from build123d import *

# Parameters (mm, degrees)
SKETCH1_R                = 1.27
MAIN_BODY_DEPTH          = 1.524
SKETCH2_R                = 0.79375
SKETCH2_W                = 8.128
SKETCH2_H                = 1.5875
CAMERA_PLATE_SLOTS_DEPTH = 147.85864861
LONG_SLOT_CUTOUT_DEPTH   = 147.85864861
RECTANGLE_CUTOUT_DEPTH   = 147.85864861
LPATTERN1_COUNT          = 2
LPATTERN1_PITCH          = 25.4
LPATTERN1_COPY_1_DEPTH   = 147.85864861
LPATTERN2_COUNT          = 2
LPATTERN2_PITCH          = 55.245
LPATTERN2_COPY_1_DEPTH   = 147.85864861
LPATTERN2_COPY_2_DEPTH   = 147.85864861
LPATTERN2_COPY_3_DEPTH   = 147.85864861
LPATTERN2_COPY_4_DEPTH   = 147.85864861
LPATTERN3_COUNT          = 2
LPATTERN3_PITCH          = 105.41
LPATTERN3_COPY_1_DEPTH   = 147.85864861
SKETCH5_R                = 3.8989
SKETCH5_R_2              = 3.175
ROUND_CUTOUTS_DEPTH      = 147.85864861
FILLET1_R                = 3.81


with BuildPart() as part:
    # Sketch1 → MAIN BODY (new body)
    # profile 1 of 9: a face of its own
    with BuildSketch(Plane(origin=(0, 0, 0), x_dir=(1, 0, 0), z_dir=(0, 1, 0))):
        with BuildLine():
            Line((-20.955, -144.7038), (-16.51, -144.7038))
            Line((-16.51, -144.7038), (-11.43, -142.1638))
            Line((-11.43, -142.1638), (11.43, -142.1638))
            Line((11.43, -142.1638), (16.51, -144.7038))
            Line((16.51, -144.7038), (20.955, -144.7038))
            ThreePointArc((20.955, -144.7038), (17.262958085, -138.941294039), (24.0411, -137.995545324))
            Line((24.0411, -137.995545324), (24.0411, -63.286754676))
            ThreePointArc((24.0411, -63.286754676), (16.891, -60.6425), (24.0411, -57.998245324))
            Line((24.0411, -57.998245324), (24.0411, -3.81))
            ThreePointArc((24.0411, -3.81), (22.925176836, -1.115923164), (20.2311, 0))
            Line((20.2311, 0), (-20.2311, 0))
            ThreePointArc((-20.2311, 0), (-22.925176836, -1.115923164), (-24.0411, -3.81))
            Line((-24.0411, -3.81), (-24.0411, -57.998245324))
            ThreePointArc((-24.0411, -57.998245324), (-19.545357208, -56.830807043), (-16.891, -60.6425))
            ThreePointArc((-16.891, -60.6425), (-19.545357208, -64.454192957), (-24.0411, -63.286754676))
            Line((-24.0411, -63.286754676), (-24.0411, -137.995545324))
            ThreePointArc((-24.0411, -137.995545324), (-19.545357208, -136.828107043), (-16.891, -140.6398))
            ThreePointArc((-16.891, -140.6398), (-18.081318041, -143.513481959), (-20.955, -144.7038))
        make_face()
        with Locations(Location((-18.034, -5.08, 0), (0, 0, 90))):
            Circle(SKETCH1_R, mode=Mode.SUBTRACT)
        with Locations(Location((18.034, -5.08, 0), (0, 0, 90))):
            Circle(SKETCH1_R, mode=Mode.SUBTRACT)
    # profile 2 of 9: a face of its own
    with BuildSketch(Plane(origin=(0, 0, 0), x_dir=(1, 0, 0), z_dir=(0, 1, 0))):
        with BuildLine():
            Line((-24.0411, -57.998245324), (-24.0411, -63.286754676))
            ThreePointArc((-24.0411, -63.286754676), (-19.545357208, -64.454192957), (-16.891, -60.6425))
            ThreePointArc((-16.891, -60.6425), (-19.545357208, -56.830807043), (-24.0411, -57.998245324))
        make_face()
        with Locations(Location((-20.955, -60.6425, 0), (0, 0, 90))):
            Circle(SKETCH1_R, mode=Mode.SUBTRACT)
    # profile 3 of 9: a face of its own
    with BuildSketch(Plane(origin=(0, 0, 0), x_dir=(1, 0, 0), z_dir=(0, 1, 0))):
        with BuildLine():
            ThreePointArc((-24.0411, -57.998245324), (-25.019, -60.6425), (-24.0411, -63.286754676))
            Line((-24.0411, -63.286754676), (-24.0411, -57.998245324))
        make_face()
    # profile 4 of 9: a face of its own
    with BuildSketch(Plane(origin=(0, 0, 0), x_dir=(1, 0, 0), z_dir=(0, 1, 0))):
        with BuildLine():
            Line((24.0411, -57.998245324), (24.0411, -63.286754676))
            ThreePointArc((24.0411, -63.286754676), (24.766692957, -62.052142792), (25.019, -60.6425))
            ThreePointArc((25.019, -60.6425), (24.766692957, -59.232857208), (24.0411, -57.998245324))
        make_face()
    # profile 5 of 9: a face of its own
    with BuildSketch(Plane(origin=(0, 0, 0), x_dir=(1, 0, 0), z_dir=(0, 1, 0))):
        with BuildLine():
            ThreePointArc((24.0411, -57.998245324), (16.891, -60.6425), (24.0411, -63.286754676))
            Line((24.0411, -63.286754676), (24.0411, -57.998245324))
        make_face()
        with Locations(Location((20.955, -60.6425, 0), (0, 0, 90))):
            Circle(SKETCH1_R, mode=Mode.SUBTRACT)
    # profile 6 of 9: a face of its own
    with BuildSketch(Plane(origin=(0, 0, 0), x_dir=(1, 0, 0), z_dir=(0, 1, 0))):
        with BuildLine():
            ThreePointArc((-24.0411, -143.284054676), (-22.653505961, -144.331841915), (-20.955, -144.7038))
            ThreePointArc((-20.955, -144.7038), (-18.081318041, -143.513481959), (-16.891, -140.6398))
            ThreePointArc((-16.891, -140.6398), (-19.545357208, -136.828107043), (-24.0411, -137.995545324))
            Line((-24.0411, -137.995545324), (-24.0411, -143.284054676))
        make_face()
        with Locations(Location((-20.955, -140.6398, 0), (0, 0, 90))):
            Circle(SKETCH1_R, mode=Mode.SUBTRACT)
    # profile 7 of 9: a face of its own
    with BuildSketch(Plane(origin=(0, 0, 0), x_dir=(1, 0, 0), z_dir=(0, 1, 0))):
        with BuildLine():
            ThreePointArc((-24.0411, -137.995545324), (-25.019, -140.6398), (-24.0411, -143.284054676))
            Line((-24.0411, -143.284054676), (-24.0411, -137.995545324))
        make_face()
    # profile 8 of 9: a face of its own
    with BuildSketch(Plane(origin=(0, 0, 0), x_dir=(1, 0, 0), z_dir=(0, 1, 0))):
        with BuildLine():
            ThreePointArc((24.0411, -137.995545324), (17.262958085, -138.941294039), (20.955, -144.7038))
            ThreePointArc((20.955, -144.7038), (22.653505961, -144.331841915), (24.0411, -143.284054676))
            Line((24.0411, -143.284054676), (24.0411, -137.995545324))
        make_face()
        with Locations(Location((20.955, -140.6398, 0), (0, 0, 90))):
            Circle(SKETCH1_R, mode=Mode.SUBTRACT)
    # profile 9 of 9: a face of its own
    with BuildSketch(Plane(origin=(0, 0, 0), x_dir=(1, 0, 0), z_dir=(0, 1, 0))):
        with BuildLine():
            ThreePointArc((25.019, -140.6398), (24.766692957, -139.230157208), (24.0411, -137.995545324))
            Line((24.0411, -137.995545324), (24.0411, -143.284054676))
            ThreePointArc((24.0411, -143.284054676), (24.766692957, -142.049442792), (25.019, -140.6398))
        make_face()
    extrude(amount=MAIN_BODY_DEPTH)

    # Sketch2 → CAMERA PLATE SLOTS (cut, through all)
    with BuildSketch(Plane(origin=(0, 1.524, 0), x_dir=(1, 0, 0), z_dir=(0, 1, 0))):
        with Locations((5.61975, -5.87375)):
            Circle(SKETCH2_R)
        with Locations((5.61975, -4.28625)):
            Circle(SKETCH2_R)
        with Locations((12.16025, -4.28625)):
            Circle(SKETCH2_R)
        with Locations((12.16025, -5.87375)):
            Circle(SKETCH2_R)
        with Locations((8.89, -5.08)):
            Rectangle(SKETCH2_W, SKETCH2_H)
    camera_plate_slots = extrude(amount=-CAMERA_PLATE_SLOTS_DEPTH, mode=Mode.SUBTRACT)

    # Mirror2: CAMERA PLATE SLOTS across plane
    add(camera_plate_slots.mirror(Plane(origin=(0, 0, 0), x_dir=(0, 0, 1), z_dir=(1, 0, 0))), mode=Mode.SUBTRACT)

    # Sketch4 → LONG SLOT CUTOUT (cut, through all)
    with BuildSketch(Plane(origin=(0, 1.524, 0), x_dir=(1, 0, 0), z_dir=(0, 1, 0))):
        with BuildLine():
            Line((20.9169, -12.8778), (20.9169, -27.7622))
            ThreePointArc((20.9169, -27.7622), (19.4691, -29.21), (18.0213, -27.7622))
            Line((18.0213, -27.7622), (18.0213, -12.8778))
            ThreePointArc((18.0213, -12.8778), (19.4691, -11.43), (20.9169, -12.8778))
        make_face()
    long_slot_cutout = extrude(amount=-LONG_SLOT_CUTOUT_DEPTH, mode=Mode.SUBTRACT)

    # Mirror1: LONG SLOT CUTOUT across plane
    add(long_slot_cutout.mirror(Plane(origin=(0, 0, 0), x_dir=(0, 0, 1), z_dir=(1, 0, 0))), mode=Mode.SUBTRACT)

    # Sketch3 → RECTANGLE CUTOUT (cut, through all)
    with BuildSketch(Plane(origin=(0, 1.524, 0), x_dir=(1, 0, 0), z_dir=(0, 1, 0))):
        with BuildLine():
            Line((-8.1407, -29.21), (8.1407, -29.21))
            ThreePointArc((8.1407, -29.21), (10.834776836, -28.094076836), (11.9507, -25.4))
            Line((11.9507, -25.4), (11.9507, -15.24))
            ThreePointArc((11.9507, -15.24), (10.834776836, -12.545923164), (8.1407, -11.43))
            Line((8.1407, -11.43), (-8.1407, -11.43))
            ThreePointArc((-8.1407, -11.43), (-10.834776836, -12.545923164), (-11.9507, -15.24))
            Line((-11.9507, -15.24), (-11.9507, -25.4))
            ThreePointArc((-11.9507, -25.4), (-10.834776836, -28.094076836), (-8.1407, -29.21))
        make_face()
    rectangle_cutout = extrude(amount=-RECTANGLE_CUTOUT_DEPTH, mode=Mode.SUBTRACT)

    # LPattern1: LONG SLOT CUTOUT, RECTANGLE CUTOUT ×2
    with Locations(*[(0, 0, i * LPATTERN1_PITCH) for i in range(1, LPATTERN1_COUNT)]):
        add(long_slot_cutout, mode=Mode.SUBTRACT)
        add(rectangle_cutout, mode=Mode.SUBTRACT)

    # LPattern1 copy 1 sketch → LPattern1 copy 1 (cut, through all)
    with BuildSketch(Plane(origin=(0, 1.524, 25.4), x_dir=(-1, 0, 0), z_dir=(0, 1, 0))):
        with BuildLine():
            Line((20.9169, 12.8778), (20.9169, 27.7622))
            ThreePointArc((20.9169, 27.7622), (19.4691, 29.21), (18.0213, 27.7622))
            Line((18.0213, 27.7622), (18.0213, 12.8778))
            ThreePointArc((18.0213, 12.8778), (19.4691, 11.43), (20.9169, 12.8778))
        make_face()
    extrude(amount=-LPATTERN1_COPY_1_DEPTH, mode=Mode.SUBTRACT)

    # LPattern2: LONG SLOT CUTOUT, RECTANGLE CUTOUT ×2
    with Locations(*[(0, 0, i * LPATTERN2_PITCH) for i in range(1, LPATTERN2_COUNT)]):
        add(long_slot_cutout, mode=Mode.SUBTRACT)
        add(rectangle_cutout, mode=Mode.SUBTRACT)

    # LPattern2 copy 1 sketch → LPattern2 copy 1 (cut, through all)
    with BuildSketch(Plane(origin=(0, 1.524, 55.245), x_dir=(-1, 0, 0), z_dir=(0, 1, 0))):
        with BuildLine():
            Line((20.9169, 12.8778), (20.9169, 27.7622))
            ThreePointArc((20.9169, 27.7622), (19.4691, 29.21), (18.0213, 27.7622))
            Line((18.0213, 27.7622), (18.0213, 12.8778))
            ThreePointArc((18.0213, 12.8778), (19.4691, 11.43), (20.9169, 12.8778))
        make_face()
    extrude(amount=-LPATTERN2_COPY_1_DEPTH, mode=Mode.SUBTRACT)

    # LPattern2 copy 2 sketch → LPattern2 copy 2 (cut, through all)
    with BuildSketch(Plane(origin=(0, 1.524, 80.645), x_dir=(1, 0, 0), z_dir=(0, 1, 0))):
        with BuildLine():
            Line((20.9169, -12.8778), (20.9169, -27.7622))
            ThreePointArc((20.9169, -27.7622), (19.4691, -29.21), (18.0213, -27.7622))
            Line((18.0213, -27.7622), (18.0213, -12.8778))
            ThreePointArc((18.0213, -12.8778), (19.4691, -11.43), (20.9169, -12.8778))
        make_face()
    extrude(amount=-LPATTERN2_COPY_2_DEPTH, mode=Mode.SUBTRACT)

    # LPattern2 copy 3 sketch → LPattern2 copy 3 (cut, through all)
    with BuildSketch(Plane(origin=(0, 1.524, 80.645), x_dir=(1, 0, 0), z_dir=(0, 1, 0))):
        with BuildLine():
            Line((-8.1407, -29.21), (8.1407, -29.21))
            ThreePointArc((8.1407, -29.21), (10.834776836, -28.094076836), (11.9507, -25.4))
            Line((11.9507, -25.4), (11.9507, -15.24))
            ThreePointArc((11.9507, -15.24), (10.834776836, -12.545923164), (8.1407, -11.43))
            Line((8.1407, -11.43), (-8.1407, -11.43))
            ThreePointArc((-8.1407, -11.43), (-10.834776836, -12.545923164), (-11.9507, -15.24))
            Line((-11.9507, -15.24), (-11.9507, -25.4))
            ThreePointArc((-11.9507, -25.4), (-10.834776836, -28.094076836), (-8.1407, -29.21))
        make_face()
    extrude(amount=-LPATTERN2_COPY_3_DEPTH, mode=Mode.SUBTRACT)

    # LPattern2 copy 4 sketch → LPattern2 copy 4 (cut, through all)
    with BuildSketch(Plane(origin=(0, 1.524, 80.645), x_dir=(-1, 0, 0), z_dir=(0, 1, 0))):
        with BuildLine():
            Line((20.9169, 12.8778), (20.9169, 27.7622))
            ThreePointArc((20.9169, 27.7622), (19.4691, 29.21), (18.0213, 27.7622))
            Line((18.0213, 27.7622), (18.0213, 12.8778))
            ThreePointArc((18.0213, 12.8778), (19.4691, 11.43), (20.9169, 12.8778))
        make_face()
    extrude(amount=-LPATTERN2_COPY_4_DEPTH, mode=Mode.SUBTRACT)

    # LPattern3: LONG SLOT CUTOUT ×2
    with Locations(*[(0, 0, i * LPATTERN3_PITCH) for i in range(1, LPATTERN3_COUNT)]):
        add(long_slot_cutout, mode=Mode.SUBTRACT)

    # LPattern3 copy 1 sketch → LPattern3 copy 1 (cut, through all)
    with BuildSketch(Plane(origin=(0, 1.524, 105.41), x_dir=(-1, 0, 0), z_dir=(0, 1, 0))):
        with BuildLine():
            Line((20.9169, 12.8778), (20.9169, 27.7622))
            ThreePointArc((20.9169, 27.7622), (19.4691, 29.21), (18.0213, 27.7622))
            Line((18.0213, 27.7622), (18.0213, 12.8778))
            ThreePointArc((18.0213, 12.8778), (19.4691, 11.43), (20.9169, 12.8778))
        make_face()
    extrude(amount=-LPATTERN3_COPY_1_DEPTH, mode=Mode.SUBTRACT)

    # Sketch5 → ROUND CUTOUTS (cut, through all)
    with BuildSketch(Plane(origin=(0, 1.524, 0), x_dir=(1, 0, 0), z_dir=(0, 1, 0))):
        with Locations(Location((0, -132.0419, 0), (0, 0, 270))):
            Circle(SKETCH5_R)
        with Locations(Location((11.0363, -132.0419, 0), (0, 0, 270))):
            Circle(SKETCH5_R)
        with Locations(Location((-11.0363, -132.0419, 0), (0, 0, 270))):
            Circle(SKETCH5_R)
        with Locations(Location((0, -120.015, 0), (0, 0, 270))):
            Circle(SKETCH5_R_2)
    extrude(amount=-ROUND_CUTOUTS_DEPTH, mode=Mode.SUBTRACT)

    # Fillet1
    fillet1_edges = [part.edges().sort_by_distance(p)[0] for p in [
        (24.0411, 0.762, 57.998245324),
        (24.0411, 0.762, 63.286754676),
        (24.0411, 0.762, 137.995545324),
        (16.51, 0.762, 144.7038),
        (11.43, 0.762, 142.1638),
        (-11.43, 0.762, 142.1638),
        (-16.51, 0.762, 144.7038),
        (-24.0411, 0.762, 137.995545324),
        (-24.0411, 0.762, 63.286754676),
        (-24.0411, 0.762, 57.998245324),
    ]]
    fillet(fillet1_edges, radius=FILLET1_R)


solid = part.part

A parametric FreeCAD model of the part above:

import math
import FreeCAD as App
import Part
import Sketcher

V = App.Vector
Q = App.Units.Quantity


def edges_at(feature, points):
    """Names of the edges that pass closest to the given points."""
    edges = feature.Shape.Edges
    near = lambda p: min(range(len(edges)), key=lambda i: edges[i].distToShape(Part.Vertex(*p))[0])
    return sorted({f"Edge{near(p) + 1}" for p in points})

doc = App.newDocument("Part")
params = doc.addObject("Spreadsheet::Sheet", "Params")
for row, (alias, value) in enumerate([
    ("sketch1_diameter", "0.1 in"),
    ("sketch1_radius", "0.16 in"),
    ("sketch1_radius2", "0.15 in"),
    ("sketch1_width", "0.9 in"),
    ("sketch1_width2", "0.175 in"),
    ("pad1_length", "0.06 in"),
    ("sketch2_radius", "0.03125 in"),
    ("sketch2_width", "0.195 in"),
    ("sketch2_height", "0.0625 in"),
    ("sketch3_radius", "0.057 in"),
    ("sketch3_height", "0.586 in"),
    ("sketch4_radius", "0.15 in"),
    ("sketch4_height", "0.4 in"),
    ("sketch4_width", "0.641 in"),
    ("linearpattern_pitch", "1 in"),
    ("sketch5_radius", "0.057 in"),
    ("sketch5_height", "0.586 in"),
    ("linearpattern2_pitch", "2.175 in"),
    ("sketch6_radius", "0.057 in"),
    ("sketch6_height", "0.586 in"),
    ("sketch7_radius", "0.057 in"),
    ("sketch7_height", "0.586 in"),
    ("sketch8_radius", "0.15 in"),
    ("sketch8_height", "0.4 in"),
    ("sketch8_width", "0.641 in"),
    ("sketch9_radius", "0.057 in"),
    ("sketch9_height", "0.586 in"),
    ("linearpattern3_pitch", "4.15 in"),
    ("sketch10_radius", "0.057 in"),
    ("sketch10_height", "0.586 in"),
    ("sketch11_diameter", "0.25 in"),
    ("sketch11_diameter2", "0.307 in"),
    ("fillet_radius", "0.15 in"),
], start=1):
    params.set(f"A{row}", alias)
    params.set(f"B{row}", "=" + value)
    params.setAlias(f"B{row}", alias)

body = doc.addObject("PartDesign::Body", "Body")

sketch1 = body.newObject("Sketcher::SketchObject", "Sketch")
sketch1.AttachmentSupport = (doc.getObject("XZ_Plane"), [""])
sketch1.MapMode = "FlatFace"
sketch1.addGeometry(Part.LineSegment(V(-21, 144.7, 0), V(-16.5, 144.7, 0)), False)
sketch1.addGeometry(Part.LineSegment(V(-16.5, 144.7, 0), V(-11.4, 142.2, 0)), False)
sketch1.addGeometry(Part.LineSegment(V(-11.4, 142.2, 0), V(11.4, 142.2, 0)), False)
sketch1.addGeometry(Part.LineSegment(V(11.4, 142.2, 0), V(16.5, 144.7, 0)), False)
sketch1.addGeometry(Part.LineSegment(V(16.5, 144.7, 0), V(21, 144.7, 0)), False)
sketch1.addGeometry(Part.ArcOfCircle(Part.Circle(V(21, 140.6, 0), V(0, 0, 1), 4.1), math.radians(41), math.radians(90)), False)
sketch1.addGeometry(Part.ArcOfCircle(Part.Circle(V(21, 140.6, 0), V(0, 0, 1), 4.1), math.radians(0), math.radians(41)), False)
sketch1.addGeometry(Part.ArcOfCircle(Part.Circle(V(21, 140.6, 0), V(0, 0, 1), 4.1), math.radians(-41), math.radians(0)), False)
sketch1.addGeometry(Part.LineSegment(V(24, 138, 0), V(24, 63.3, 0)), False)
sketch1.addGeometry(Part.ArcOfCircle(Part.Circle(V(21, 60.6, 0), V(0, 0, 1), 4.1), math.radians(0), math.radians(41)), False)
sketch1.addGeometry(Part.ArcOfCircle(Part.Circle(V(21, 60.6, 0), V(0, 0, 1), 4.1), math.radians(-41), math.radians(0)), False)
sketch1.addGeometry(Part.LineSegment(V(24, 58, 0), V(24, 3.8, 0)), False)
sketch1.addGeometry(Part.ArcOfCircle(Part.Circle(V(20.2, 3.8, 0), V(0, 0, 1), 3.8), math.radians(-90), math.radians(0)), False)
sketch1.addGeometry(Part.LineSegment(V(20.2, 0, 0), V(-20.2, 0, 0)), False)
sketch1.addGeometry(Part.ArcOfCircle(Part.Circle(V(-20.2, 3.8, 0), V(0, 0, 1), 3.8), math.radians(-180), math.radians(-90)), False)
sketch1.addGeometry(Part.LineSegment(V(-24, 3.8, 0), V(-24, 58, 0)), False)
sketch1.addGeometry(Part.ArcOfCircle(Part.Circle(V(-21, 60.6, 0), V(0, 0, 1), 4.1), math.radians(139), math.radians(221)), False)
sketch1.addGeometry(Part.LineSegment(V(-24, 63.3, 0), V(-24, 138, 0)), False)
sketch1.addGeometry(Part.ArcOfCircle(Part.Circle(V(-21, 140.6, 0), V(0, 0, 1), 4.1), math.radians(139), math.radians(221)), False)
sketch1.addGeometry(Part.ArcOfCircle(Part.Circle(V(-21, 140.6, 0), V(0, 0, 1), 4.1), math.radians(90), math.radians(139)), False)
sketch1.addGeometry(Part.Circle(V(-18, 5.1, 0), V(0, 0, 1), 1.3), False)
sketch1.addGeometry(Part.Circle(V(18, 5.1, 0), V(0, 0, 1), 1.3), False)
sketch1.addGeometry(Part.Circle(V(-21, 140.6, 0), V(0, 0, 1), 1.3), False)
sketch1.addGeometry(Part.Circle(V(-21, 60.6, 0), V(0, 0, 1), 1.3), False)
sketch1.addGeometry(Part.Circle(V(21, 140.6, 0), V(0, 0, 1), 1.3), False)
sketch1.addGeometry(Part.Circle(V(21, 60.6, 0), V(0, 0, 1), 1.3), False)
sketch1.addConstraint(Sketcher.Constraint("Coincident", 0, 2, 1, 1))
sketch1.addConstraint(Sketcher.Constraint("Coincident", 1, 2, 2, 1))
sketch1.addConstraint(Sketcher.Constraint("Coincident", 2, 2, 3, 1))
sketch1.addConstraint(Sketcher.Constraint("Coincident", 3, 2, 4, 1))
sketch1.addConstraint(Sketcher.Constraint("Tangent", 4, 2, 5, 2))
sketch1.addConstraint(Sketcher.Constraint("Tangent", 5, 1, 6, 2))
sketch1.addConstraint(Sketcher.Constraint("Tangent", 6, 1, 7, 2))
sketch1.addConstraint(Sketcher.Constraint("Coincident", 7, 1, 8, 1))
sketch1.addConstraint(Sketcher.Constraint("Coincident", 8, 2, 9, 2))
sketch1.addConstraint(Sketcher.Constraint("Tangent", 9, 1, 10, 2))
sketch1.addConstraint(Sketcher.Constraint("Coincident", 10, 1, 11, 1))
sketch1.addConstraint(Sketcher.Constraint("Tangent", 11, 2, 12, 2))
sketch1.addConstraint(Sketcher.Constraint("Tangent", 12, 1, 13, 1))
sketch1.addConstraint(Sketcher.Constraint("Tangent", 13, 2, 14, 2))
sketch1.addConstraint(Sketcher.Constraint("Tangent", 14, 1, 15, 1))
sketch1.addConstraint(Sketcher.Constraint("Coincident", 15, 2, 16, 2))
sketch1.addConstraint(Sketcher.Constraint("Coincident", 16, 1, 17, 1))
sketch1.addConstraint(Sketcher.Constraint("Coincident", 17, 2, 18, 2))
sketch1.addConstraint(Sketcher.Constraint("Tangent", 18, 1, 19, 2))
sketch1.addConstraint(Sketcher.Constraint("Tangent", 19, 1, 0, 1))
sketch1.addConstraint(Sketcher.Constraint("Horizontal", 0))
sketch1.addConstraint(Sketcher.Constraint("Horizontal", 2))
sketch1.addConstraint(Sketcher.Constraint("Horizontal", 4))
sketch1.addConstraint(Sketcher.Constraint("Vertical", 8))
sketch1.addConstraint(Sketcher.Constraint("Vertical", 11))
sketch1.addConstraint(Sketcher.Constraint("Horizontal", 13))
sketch1.addConstraint(Sketcher.Constraint("Vertical", 15))
sketch1.addConstraint(Sketcher.Constraint("Vertical", 17))
sketch1.addConstraint(Sketcher.Constraint("Coincident", 7, 3, 5, 3))
sketch1.addConstraint(Sketcher.Constraint("Coincident", 22, 3, 18, 3))
sketch1.addConstraint(Sketcher.Constraint("Coincident", 23, 3, 16, 3))
sketch1.addConstraint(Sketcher.Constraint("Coincident", 24, 3, 5, 3))
sketch1.addConstraint(Sketcher.Constraint("Coincident", 25, 3, 9, 3))
sketch1.addConstraint(Sketcher.Constraint("Equal", 7, 9))
sketch1.addConstraint(Sketcher.Constraint("Equal", 9, 10))
sketch1.addConstraint(Sketcher.Constraint("Equal", 12, 14))
sketch1.addConstraint(Sketcher.Constraint("Equal", 10, 16))
sketch1.addConstraint(Sketcher.Constraint("Equal", 16, 18))
sketch1.addConstraint(Sketcher.Constraint("Equal", 18, 19))
sketch1.addConstraint(Sketcher.Constraint("Equal", 20, 21))
sketch1.addConstraint(Sketcher.Constraint("Equal", 21, 22))
sketch1.addConstraint(Sketcher.Constraint("Equal", 22, 23))
sketch1.addConstraint(Sketcher.Constraint("Equal", 23, 24))
sketch1.addConstraint(Sketcher.Constraint("Equal", 24, 25))
sketch1.addConstraint(Sketcher.Constraint("Symmetric", 12, 1, 13, 2, -1, 1))
sketch1.addConstraint(Sketcher.Constraint("Symmetric", 9, 3, 16, 3, -2))
sketch1.addConstraint(Sketcher.Constraint("Symmetric", 5, 3, 18, 3, -2))
sketch1.addConstraint(Sketcher.Constraint("Symmetric", 20, 3, 21, 3, -2))
sketch1.addConstraint(Sketcher.Constraint("Horizontal", 24, 3, 6, 1))
sketch1.addConstraint(Sketcher.Constraint("Horizontal", 25, 3, 9, 1))
sketch1.addConstraint(Sketcher.Constraint("Horizontal", 8, 2, 16, 1))
sketch1.addConstraint(Sketcher.Constraint("Horizontal", 5, 1, 18, 1))
sketch1.addConstraint(Sketcher.Constraint("Vertical", 7, 3, 9, 3))
sketch1.addConstraint(Sketcher.Constraint("Vertical", 5, 1, 7, 1))
sketch1.addConstraint(Sketcher.Constraint("Vertical", 8, 2, 10, 1))
sketch1.addConstraint(Sketcher.Constraint("Equal", 0, 4))
sketch1.addConstraint(Sketcher.Constraint("Equal", 1, 3))
sketch1.addConstraint(Sketcher.Constraint("Diameter", 20, Q("0.1 in")))
sketch1.addConstraint(Sketcher.Constraint("Radius", 5, Q("0.16 in")))
sketch1.addConstraint(Sketcher.Constraint("Radius", 12, Q("0.15 in")))
sketch1.addConstraint(Sketcher.Constraint("DistanceX", 2, 1, 2, 2, Q("0.9 in")))
sketch1.addConstraint(Sketcher.Constraint("DistanceY", -1, 1, 20, 3, Q("0.2 in")))
sketch1.addConstraint(Sketcher.Constraint("DistanceX", 0, 2, 1, 2, Q("0.2 in")))
sketch1.addConstraint(Sketcher.Constraint("DistanceY", 1, 2, 0, 2, Q("0.1 in")))
sketch1.addConstraint(Sketcher.Constraint("DistanceX", 0, 1, 0, 2, Q("0.175 in")))
sketch1.addConstraint(Sketcher.Constraint("DistanceX", 13, 2, 13, 1, Q("1.593 in")))
sketch1.addConstraint(Sketcher.Constraint("DistanceX", 20, 3, -1, 1, Q("0.71 in")))
sketch1.addConstraint(Sketcher.Constraint("DistanceY", -1, 1, 5, 3, Q("5.537 in")))
sketch1.addConstraint(Sketcher.Constraint("DistanceY", 20, 3, 16, 3, Q("2.1875 in")))
sketch1.setExpression("Constraints[57]", "Params.sketch1_diameter")
sketch1.setExpression("Constraints[58]", "Params.sketch1_radius")
sketch1.setExpression("Constraints[59]", "Params.sketch1_radius2")
sketch1.setExpression("Constraints[60]", "Params.sketch1_width")
sketch1.setExpression("Constraints[64]", "Params.sketch1_width2")
pad1 = body.newObject("PartDesign::Pad", "Pad")
pad1.Profile = sketch1
pad1.setExpression("Length", "Params.pad1_length")
pad1.Reversed = True

sketch2 = body.newObject("Sketcher::SketchObject", "Sketch001")
sketch2.AttachmentSupport = (doc.getObject("XZ_Plane"), [""])
sketch2.MapMode = "FlatFace"
sketch2.AttachmentOffset = App.Placement(V(0, 0, -0.06 * 25.4), App.Rotation())
sketch2.addGeometry(Part.LineSegment(V(6.4, 5.9, 0), V(11.4, 5.9, 0)), False)
sketch2.addGeometry(Part.ArcOfCircle(Part.Circle(V(12.2, 5.9, 0), V(0, 0, 1), 0.8), math.radians(0), math.radians(180)), False)
sketch2.addGeometry(Part.LineSegment(V(13, 5.9, 0), V(13, 4.3, 0)), False)
sketch2.addGeometry(Part.ArcOfCircle(Part.Circle(V(12.2, 4.3, 0), V(0, 0, 1), 0.8), math.radians(180), math.radians(360)), False)
sketch2.addGeometry(Part.LineSegment(V(11.4, 4.3, 0), V(6.4, 4.3, 0)), False)
sketch2.addGeometry(Part.ArcOfCircle(Part.Circle(V(5.6, 4.3, 0), V(0, 0, 1), 0.8), math.radians(180), math.radians(360)), False)
sketch2.addGeometry(Part.LineSegment(V(4.8, 4.3, 0), V(4.8, 5.9, 0)), False)
sketch2.addGeometry(Part.ArcOfCircle(Part.Circle(V(5.6, 5.9, 0), V(0, 0, 1), 0.8), math.radians(0), math.radians(180)), False)
sketch2.addConstraint(Sketcher.Constraint("Coincident", 0, 2, 1, 2))
sketch2.addConstraint(Sketcher.Constraint("Tangent", 1, 1, 2, 1))
sketch2.addConstraint(Sketcher.Constraint("Tangent", 2, 2, 3, 2))
sketch2.addConstraint(Sketcher.Constraint("Coincident", 3, 1, 4, 1))
sketch2.addConstraint(Sketcher.Constraint("Coincident", 4, 2, 5, 2))
sketch2.addConstraint(Sketcher.Constraint("Tangent", 5, 1, 6, 1))
sketch2.addConstraint(Sketcher.Constraint("Tangent", 6, 2, 7, 2))
sketch2.addConstraint(Sketcher.Constraint("Coincident", 7, 1, 0, 1))
sketch2.addConstraint(Sketcher.Constraint("Horizontal", 0))
sketch2.addConstraint(Sketcher.Constraint("Vertical", 2))
sketch2.addConstraint(Sketcher.Constraint("Horizontal", 4))
sketch2.addConstraint(Sketcher.Constraint("Vertical", 6))
sketch2.addConstraint(Sketcher.Constraint("Equal", 1, 3))
sketch2.addConstraint(Sketcher.Constraint("Equal", 3, 5))
sketch2.addConstraint(Sketcher.Constraint("Equal", 5, 7))
sketch2.addConstraint(Sketcher.Constraint("Horizontal", 3, 3, 5, 3))
sketch2.addConstraint(Sketcher.Constraint("Horizontal", 1, 3, 7, 3))
sketch2.addConstraint(Sketcher.Constraint("Horizontal", 7, 3, 0, 2))
sketch2.addConstraint(Sketcher.Constraint("Horizontal", 2, 2, 3, 1))
sketch2.addConstraint(Sketcher.Constraint("Radius", 1, Q("0.03125 in")))
sketch2.addConstraint(Sketcher.Constraint("DistanceX", 0, 1, 0, 2, Q("0.195 in")))
sketch2.addConstraint(Sketcher.Constraint("DistanceY", 2, 2, 2, 1, Q("0.0625 in")))
sketch2.addConstraint(Sketcher.Constraint("DistanceX", -1, 1, 1, 1, Q("0.51 in")))
sketch2.addConstraint(Sketcher.Constraint("DistanceY", -1, 1, 1, 3, Q("5.87375 mm")))
sketch2.setExpression("Constraints[19]", "Params.sketch2_radius")
sketch2.setExpression("Constraints[20]", "Params.sketch2_width")
sketch2.setExpression("Constraints[21]", "Params.sketch2_height")
pocket1 = body.newObject("PartDesign::Pocket", "Pocket")
pocket1.Profile = sketch2
pocket1.Type = "ThroughAll"
pocket1.Reversed = True
doc.recompute()

mirrored = body.newObject("PartDesign::Mirrored", "Mirrored")
mirrored.Originals = [pocket1]
mirrored.MirrorPlane = (doc.getObject("YZ_Plane"), [""])
body.Tip = mirrored

sketch3 = body.newObject("Sketcher::SketchObject", "Sketch002")
sketch3.AttachmentSupport = (doc.getObject("XZ_Plane"), [""])
sketch3.MapMode = "FlatFace"
sketch3.AttachmentOffset = App.Placement(V(0, 0, -0.06 * 25.4), App.Rotation())
sketch3.addGeometry(Part.LineSegment(V(20.9, 27.8, 0), V(20.9, 12.9, 0)), False)
sketch3.addGeometry(Part.ArcOfCircle(Part.Circle(V(19.5, 12.9, 0), V(0, 0, 1), 1.4), math.radians(180), math.radians(360)), False)
sketch3.addGeometry(Part.LineSegment(V(18, 12.9, 0), V(18, 27.8, 0)), False)
sketch3.addGeometry(Part.ArcOfCircle(Part.Circle(V(19.5, 27.8, 0), V(0, 0, 1), 1.4), math.radians(0), math.radians(180)), False)
sketch3.addConstraint(Sketcher.Constraint("Tangent", 0, 2, 1, 2))
sketch3.addConstraint(Sketcher.Constraint("Tangent", 1, 1, 2, 1))
sketch3.addConstraint(Sketcher.Constraint("Tangent", 2, 2, 3, 2))
sketch3.addConstraint(Sketcher.Constraint("Tangent", 3, 1, 0, 1))
sketch3.addConstraint(Sketcher.Constraint("Vertical", 0))
sketch3.addConstraint(Sketcher.Constraint("Vertical", 2))
sketch3.addConstraint(Sketcher.Constraint("Radius", 1, Q("0.057 in")))
sketch3.addConstraint(Sketcher.Constraint("DistanceY", 0, 2, 0, 1, Q("0.586 in")))
sketch3.addConstraint(Sketcher.Constraint("DistanceY", -1, 1, 1, 3, Q("0.507 in")))
sketch3.addConstraint(Sketcher.Constraint("DistanceX", -1, 1, 1, 3, Q("0.7665 in")))
sketch3.setExpression("Constraints[6]", "Params.sketch3_radius")
sketch3.setExpression("Constraints[7]", "Params.sketch3_height")
pocket2 = body.newObject("PartDesign::Pocket", "Pocket001")
pocket2.Profile = sketch3
pocket2.Type = "ThroughAll"
pocket2.Reversed = True
doc.recompute()

mirrored2 = body.newObject("PartDesign::Mirrored", "Mirrored001")
mirrored2.Originals = [pocket2]
mirrored2.MirrorPlane = (doc.getObject("YZ_Plane"), [""])
body.Tip = mirrored2

sketch4 = body.newObject("Sketcher::SketchObject", "Sketch003")
sketch4.AttachmentSupport = (doc.getObject("XZ_Plane"), [""])
sketch4.MapMode = "FlatFace"
sketch4.AttachmentOffset = App.Placement(V(0, 0, -0.06 * 25.4), App.Rotation())
sketch4.addGeometry(Part.LineSegment(V(-8.1, 29.2, 0), V(8.1, 29.2, 0)), False)
sketch4.addGeometry(Part.ArcOfCircle(Part.Circle(V(8.1, 25.4, 0), V(0, 0, 1), 3.8), math.radians(0), math.radians(90)), False)
sketch4.addGeometry(Part.LineSegment(V(12, 25.4, 0), V(12, 15.2, 0)), False)
sketch4.addGeometry(Part.ArcOfCircle(Part.Circle(V(8.1, 15.2, 0), V(0, 0, 1), 3.8), math.radians(-90), math.radians(0)), False)
sketch4.addGeometry(Part.LineSegment(V(8.1, 11.4, 0), V(-8.1, 11.4, 0)), False)
sketch4.addGeometry(Part.ArcOfCircle(Part.Circle(V(-8.1, 15.2, 0), V(0, 0, 1), 3.8), math.radians(-180), math.radians(-90)), False)
sketch4.addGeometry(Part.LineSegment(V(-12, 15.2, 0), V(-12, 25.4, 0)), False)
sketch4.addGeometry(Part.ArcOfCircle(Part.Circle(V(-8.1, 25.4, 0), V(0, 0, 1), 3.8), math.radians(90), math.radians(180)), False)
sketch4.addConstraint(Sketcher.Constraint("Tangent", 0, 2, 1, 2))
sketch4.addConstraint(Sketcher.Constraint("Tangent", 1, 1, 2, 1))
sketch4.addConstraint(Sketcher.Constraint("Tangent", 2, 2, 3, 2))
sketch4.addConstraint(Sketcher.Constraint("Tangent", 3, 1, 4, 1))
sketch4.addConstraint(Sketcher.Constraint("Tangent", 4, 2, 5, 2))
sketch4.addConstraint(Sketcher.Constraint("Tangent", 5, 1, 6, 1))
sketch4.addConstraint(Sketcher.Constraint("Tangent", 6, 2, 7, 2))
sketch4.addConstraint(Sketcher.Constraint("Tangent", 7, 1, 0, 1))
sketch4.addConstraint(Sketcher.Constraint("Horizontal", 0))
sketch4.addConstraint(Sketcher.Constraint("Vertical", 2))
sketch4.addConstraint(Sketcher.Constraint("Horizontal", 4))
sketch4.addConstraint(Sketcher.Constraint("Vertical", 6))
sketch4.addConstraint(Sketcher.Constraint("Equal", 1, 3))
sketch4.addConstraint(Sketcher.Constraint("Equal", 3, 5))
sketch4.addConstraint(Sketcher.Constraint("Equal", 5, 7))
sketch4.addConstraint(Sketcher.Constraint("Radius", 1, Q("0.15 in")))
sketch4.addConstraint(Sketcher.Constraint("DistanceY", 2, 2, 2, 1, Q("0.4 in")))
sketch4.addConstraint(Sketcher.Constraint("DistanceY", -1, 1, 1, 3, Q("1 in")))
sketch4.addConstraint(Sketcher.Constraint("DistanceX", 0, 1, 0, 2, Q("0.641 in")))
sketch4.addConstraint(Sketcher.Constraint("DistanceX", -1, 1, 1, 3, Q("0.3205 in")))
sketch4.setExpression("Constraints[15]", "Params.sketch4_radius")
sketch4.setExpression("Constraints[16]", "Params.sketch4_height")
sketch4.setExpression("Constraints[18]", "Params.sketch4_width")
pocket3 = body.newObject("PartDesign::Pocket", "Pocket002")
pocket3.Profile = sketch4
pocket3.Type = "ThroughAll"
pocket3.Reversed = True
doc.recompute()

linearpattern = body.newObject("PartDesign::LinearPattern", "LinearPattern")
linearpattern.Originals = [pocket2, pocket3]
linearpattern.Direction = (doc.getObject("Z_Axis"), [""])
linearpattern.Mode = "offset"
linearpattern.setExpression("Offset", "Params.linearpattern_pitch")
linearpattern.Occurrences = 2
body.Tip = linearpattern

sketch5 = body.newObject("Sketcher::SketchObject", "Sketch004")
sketch5.AttachmentSupport = (doc.getObject("XZ_Plane"), [""])
sketch5.MapMode = "FlatFace"
sketch5.AttachmentOffset = App.Placement(V(0, 0, -0.06 * 25.4), App.Rotation())
sketch5.addGeometry(Part.LineSegment(V(-20.9, 38.3, 0), V(-20.9, 53.2, 0)), False)
sketch5.addGeometry(Part.ArcOfCircle(Part.Circle(V(-19.5, 53.2, 0), V(0, 0, 1), 1.4), math.radians(0), math.radians(180)), False)
sketch5.addGeometry(Part.LineSegment(V(-18, 53.2, 0), V(-18, 38.3, 0)), False)
sketch5.addGeometry(Part.ArcOfCircle(Part.Circle(V(-19.5, 38.3, 0), V(0, 0, 1), 1.4), math.radians(180), math.radians(360)), False)
sketch5.addConstraint(Sketcher.Constraint("Tangent", 0, 2, 1, 2))
sketch5.addConstraint(Sketcher.Constraint("Tangent", 1, 1, 2, 1))
sketch5.addConstraint(Sketcher.Constraint("Tangent", 2, 2, 3, 2))
sketch5.addConstraint(Sketcher.Constraint("Tangent", 3, 1, 0, 1))
sketch5.addConstraint(Sketcher.Constraint("Vertical", 0))
sketch5.addConstraint(Sketcher.Constraint("Vertical", 2))
sketch5.addConstraint(Sketcher.Constraint("Radius", 1, Q("0.057 in")))
sketch5.addConstraint(Sketcher.Constraint("DistanceY", 0, 1, 0, 2, Q("0.586 in")))
sketch5.addConstraint(Sketcher.Constraint("DistanceY", -1, 1, 1, 3, Q("2.093 in")))
sketch5.addConstraint(Sketcher.Constraint("DistanceX", 1, 3, -1, 1, Q("0.7665 in")))
sketch5.setExpression("Constraints[6]", "Params.sketch5_radius")
sketch5.setExpression("Constraints[7]", "Params.sketch5_height")
pocket4 = body.newObject("PartDesign::Pocket", "Pocket003")
pocket4.Profile = sketch5
pocket4.Type = "ThroughAll"
pocket4.Reversed = True
doc.recompute()

linearpattern2 = body.newObject("PartDesign::LinearPattern", "LinearPattern001")
linearpattern2.Originals = [pocket2, pocket3]
linearpattern2.Direction = (doc.getObject("Z_Axis"), [""])
linearpattern2.Mode = "offset"
linearpattern2.setExpression("Offset", "Params.linearpattern2_pitch")
linearpattern2.Occurrences = 2
body.Tip = linearpattern2

sketch6 = body.newObject("Sketcher::SketchObject", "Sketch005")
sketch6.AttachmentSupport = (doc.getObject("XZ_Plane"), [""])
sketch6.MapMode = "FlatFace"
sketch6.AttachmentOffset = App.Placement(V(0, 0, -0.06 * 25.4), App.Rotation())
sketch6.addGeometry(Part.LineSegment(V(-20.9, 68.1, 0), V(-20.9, 83, 0)), False)
sketch6.addGeometry(Part.ArcOfCircle(Part.Circle(V(-19.5, 83, 0), V(0, 0, 1), 1.4), math.radians(0), math.radians(180)), False)
sketch6.addGeometry(Part.LineSegment(V(-18, 83, 0), V(-18, 68.1, 0)), False)
sketch6.addGeometry(Part.ArcOfCircle(Part.Circle(V(-19.5, 68.1, 0), V(0, 0, 1), 1.4), math.radians(180), math.radians(360)), False)
sketch6.addConstraint(Sketcher.Constraint("Tangent", 0, 2, 1, 2))
sketch6.addConstraint(Sketcher.Constraint("Tangent", 1, 1, 2, 1))
sketch6.addConstraint(Sketcher.Constraint("Tangent", 2, 2, 3, 2))
sketch6.addConstraint(Sketcher.Constraint("Tangent", 3, 1, 0, 1))
sketch6.addConstraint(Sketcher.Constraint("Vertical", 0))
sketch6.addConstraint(Sketcher.Constraint("Vertical", 2))
sketch6.addConstraint(Sketcher.Constraint("Radius", 1, Q("0.057 in")))
sketch6.addConstraint(Sketcher.Constraint("DistanceY", 0, 1, 0, 2, Q("0.586 in")))
sketch6.addConstraint(Sketcher.Constraint("DistanceY", -1, 1, 1, 3, Q("3.268 in")))
sketch6.addConstraint(Sketcher.Constraint("DistanceX", 1, 3, -1, 1, Q("0.7665 in")))
sketch6.setExpression("Constraints[6]", "Params.sketch6_radius")
sketch6.setExpression("Constraints[7]", "Params.sketch6_height")
pocket5 = body.newObject("PartDesign::Pocket", "Pocket004")
pocket5.Profile = sketch6
pocket5.Type = "ThroughAll"
pocket5.Reversed = True

sketch7 = body.newObject("Sketcher::SketchObject", "Sketch006")
sketch7.AttachmentSupport = (doc.getObject("XZ_Plane"), [""])
sketch7.MapMode = "FlatFace"
sketch7.AttachmentOffset = App.Placement(V(0, 0, -0.06 * 25.4), App.Rotation())
sketch7.addGeometry(Part.LineSegment(V(20.9, 108.4, 0), V(20.9, 93.5, 0)), False)
sketch7.addGeometry(Part.ArcOfCircle(Part.Circle(V(19.5, 93.5, 0), V(0, 0, 1), 1.4), math.radians(180), math.radians(360)), False)
sketch7.addGeometry(Part.LineSegment(V(18, 93.5, 0), V(18, 108.4, 0)), False)
sketch7.addGeometry(Part.ArcOfCircle(Part.Circle(V(19.5, 108.4, 0), V(0, 0, 1), 1.4), math.radians(0), math.radians(180)), False)
sketch7.addConstraint(Sketcher.Constraint("Tangent", 0, 2, 1, 2))
sketch7.addConstraint(Sketcher.Constraint("Tangent", 1, 1, 2, 1))
sketch7.addConstraint(Sketcher.Constraint("Tangent", 2, 2, 3, 2))
sketch7.addConstraint(Sketcher.Constraint("Tangent", 3, 1, 0, 1))
sketch7.addConstraint(Sketcher.Constraint("Vertical", 0))
sketch7.addConstraint(Sketcher.Constraint("Vertical", 2))
sketch7.addConstraint(Sketcher.Constraint("Radius", 1, Q("0.057 in")))
sketch7.addConstraint(Sketcher.Constraint("DistanceY", 0, 2, 0, 1, Q("0.586 in")))
sketch7.addConstraint(Sketcher.Constraint("DistanceY", -1, 1, 1, 3, Q("3.682 in")))
sketch7.addConstraint(Sketcher.Constraint("DistanceX", -1, 1, 1, 3, Q("0.7665 in")))
sketch7.setExpression("Constraints[6]", "Params.sketch7_radius")
sketch7.setExpression("Constraints[7]", "Params.sketch7_height")
pocket6 = body.newObject("PartDesign::Pocket", "Pocket005")
pocket6.Profile = sketch7
pocket6.Type = "ThroughAll"
pocket6.Reversed = True

sketch8 = body.newObject("Sketcher::SketchObject", "Sketch007")
sketch8.AttachmentSupport = (doc.getObject("XZ_Plane"), [""])
sketch8.MapMode = "FlatFace"
sketch8.AttachmentOffset = App.Placement(V(0, 0, -0.06 * 25.4), App.Rotation())
sketch8.addGeometry(Part.LineSegment(V(-8.1, 109.9, 0), V(8.1, 109.9, 0)), False)
sketch8.addGeometry(Part.ArcOfCircle(Part.Circle(V(8.1, 106, 0), V(0, 0, 1), 3.8), math.radians(0), math.radians(90)), False)
sketch8.addGeometry(Part.LineSegment(V(12, 106, 0), V(12, 95.9, 0)), False)
sketch8.addGeometry(Part.ArcOfCircle(Part.Circle(V(8.1, 95.9, 0), V(0, 0, 1), 3.8), math.radians(-90), math.radians(0)), False)
sketch8.addGeometry(Part.LineSegment(V(8.1, 92.1, 0), V(-8.1, 92.1, 0)), False)
sketch8.addGeometry(Part.ArcOfCircle(Part.Circle(V(-8.1, 95.9, 0), V(0, 0, 1), 3.8), math.radians(-180), math.radians(-90)), False)
sketch8.addGeometry(Part.LineSegment(V(-12, 95.9, 0), V(-12, 106, 0)), False)
sketch8.addGeometry(Part.ArcOfCircle(Part.Circle(V(-8.1, 106, 0), V(0, 0, 1), 3.8), math.radians(90), math.radians(180)), False)
sketch8.addConstraint(Sketcher.Constraint("Tangent", 0, 2, 1, 2))
sketch8.addConstraint(Sketcher.Constraint("Tangent", 1, 1, 2, 1))
sketch8.addConstraint(Sketcher.Constraint("Tangent", 2, 2, 3, 2))
sketch8.addConstraint(Sketcher.Constraint("Tangent", 3, 1, 4, 1))
sketch8.addConstraint(Sketcher.Constraint("Tangent", 4, 2, 5, 2))
sketch8.addConstraint(Sketcher.Constraint("Tangent", 5, 1, 6, 1))
sketch8.addConstraint(Sketcher.Constraint("Tangent", 6, 2, 7, 2))
sketch8.addConstraint(Sketcher.Constraint("Tangent", 7, 1, 0, 1))
sketch8.addConstraint(Sketcher.Constraint("Horizontal", 0))
sketch8.addConstraint(Sketcher.Constraint("Vertical", 2))
sketch8.addConstraint(Sketcher.Constraint("Horizontal", 4))
sketch8.addConstraint(Sketcher.Constraint("Vertical", 6))
sketch8.addConstraint(Sketcher.Constraint("Equal", 1, 3))
sketch8.addConstraint(Sketcher.Constraint("Equal", 3, 5))
sketch8.addConstraint(Sketcher.Constraint("Equal", 5, 7))
sketch8.addConstraint(Sketcher.Constraint("Radius", 1, Q("0.15 in")))
sketch8.addConstraint(Sketcher.Constraint("DistanceY", 2, 2, 2, 1, Q("0.4 in")))
sketch8.addConstraint(Sketcher.Constraint("DistanceX", 0, 1, 0, 2, Q("0.641 in")))
sketch8.addConstraint(Sketcher.Constraint("DistanceY", -1, 1, 1, 3, Q("4.175 in")))
sketch8.addConstraint(Sketcher.Constraint("DistanceX", -1, 1, 1, 3, Q("0.3205 in")))
sketch8.setExpression("Constraints[15]", "Params.sketch8_radius")
sketch8.setExpression("Constraints[16]", "Params.sketch8_height")
sketch8.setExpression("Constraints[17]", "Params.sketch8_width")
pocket7 = body.newObject("PartDesign::Pocket", "Pocket006")
pocket7.Profile = sketch8
pocket7.Type = "ThroughAll"
pocket7.Reversed = True

sketch9 = body.newObject("Sketcher::SketchObject", "Sketch008")
sketch9.AttachmentSupport = (doc.getObject("XZ_Plane"), [""])
sketch9.MapMode = "FlatFace"
sketch9.AttachmentOffset = App.Placement(V(0, 0, -0.06 * 25.4), App.Rotation())
sketch9.addGeometry(Part.LineSegment(V(-20.9, 93.5, 0), V(-20.9, 108.4, 0)), False)
sketch9.addGeometry(Part.ArcOfCircle(Part.Circle(V(-19.5, 108.4, 0), V(0, 0, 1), 1.4), math.radians(0), math.radians(180)), False)
sketch9.addGeometry(Part.LineSegment(V(-18, 108.4, 0), V(-18, 93.5, 0)), False)
sketch9.addGeometry(Part.ArcOfCircle(Part.Circle(V(-19.5, 93.5, 0), V(0, 0, 1), 1.4), math.radians(180), math.radians(360)), False)
sketch9.addConstraint(Sketcher.Constraint("Tangent", 0, 2, 1, 2))
sketch9.addConstraint(Sketcher.Constraint("Tangent", 1, 1, 2, 1))
sketch9.addConstraint(Sketcher.Constraint("Tangent", 2, 2, 3, 2))
sketch9.addConstraint(Sketcher.Constraint("Tangent", 3, 1, 0, 1))
sketch9.addConstraint(Sketcher.Constraint("Vertical", 0))
sketch9.addConstraint(Sketcher.Constraint("Vertical", 2))
sketch9.addConstraint(Sketcher.Constraint("Radius", 1, Q("0.057 in")))
sketch9.addConstraint(Sketcher.Constraint("DistanceY", 0, 1, 0, 2, Q("0.586 in")))
sketch9.addConstraint(Sketcher.Constraint("DistanceY", -1, 1, 1, 3, Q("4.268 in")))
sketch9.addConstraint(Sketcher.Constraint("DistanceX", 1, 3, -1, 1, Q("0.7665 in")))
sketch9.setExpression("Constraints[6]", "Params.sketch9_radius")
sketch9.setExpression("Constraints[7]", "Params.sketch9_height")
pocket8 = body.newObject("PartDesign::Pocket", "Pocket007")
pocket8.Profile = sketch9
pocket8.Type = "ThroughAll"
pocket8.Reversed = True
doc.recompute()

linearpattern3 = body.newObject("PartDesign::LinearPattern", "LinearPattern002")
linearpattern3.Originals = [pocket2]
linearpattern3.Direction = (doc.getObject("Z_Axis"), [""])
linearpattern3.Mode = "offset"
linearpattern3.setExpression("Offset", "Params.linearpattern3_pitch")
linearpattern3.Occurrences = 2
body.Tip = linearpattern3

sketch10 = body.newObject("Sketcher::SketchObject", "Sketch009")
sketch10.AttachmentSupport = (doc.getObject("XZ_Plane"), [""])
sketch10.MapMode = "FlatFace"
sketch10.AttachmentOffset = App.Placement(V(0, 0, -0.06 * 25.4), App.Rotation())
sketch10.addGeometry(Part.LineSegment(V(-20.9, 118.3, 0), V(-20.9, 133.2, 0)), False)
sketch10.addGeometry(Part.ArcOfCircle(Part.Circle(V(-19.5, 133.2, 0), V(0, 0, 1), 1.4), math.radians(0), math.radians(180)), False)
sketch10.addGeometry(Part.LineSegment(V(-18, 133.2, 0), V(-18, 118.3, 0)), False)
sketch10.addGeometry(Part.ArcOfCircle(Part.Circle(V(-19.5, 118.3, 0), V(0, 0, 1), 1.4), math.radians(180), math.radians(360)), False)
sketch10.addConstraint(Sketcher.Constraint("Tangent", 0, 2, 1, 2))
sketch10.addConstraint(Sketcher.Constraint("Tangent", 1, 1, 2, 1))
sketch10.addConstraint(Sketcher.Constraint("Tangent", 2, 2, 3, 2))
sketch10.addConstraint(Sketcher.Constraint("Tangent", 3, 1, 0, 1))
sketch10.addConstraint(Sketcher.Constraint("Vertical", 0))
sketch10.addConstraint(Sketcher.Constraint("Vertical", 2))
sketch10.addConstraint(Sketcher.Constraint("Radius", 1, Q("0.057 in")))
sketch10.addConstraint(Sketcher.Constraint("DistanceY", 0, 1, 0, 2, Q("0.586 in")))
sketch10.addConstraint(Sketcher.Constraint("DistanceY", -1, 1, 1, 3, Q("5.243 in")))
sketch10.addConstraint(Sketcher.Constraint("DistanceX", 1, 3, -1, 1, Q("0.7665 in")))
sketch10.setExpression("Constraints[6]", "Params.sketch10_radius")
sketch10.setExpression("Constraints[7]", "Params.sketch10_height")
pocket9 = body.newObject("PartDesign::Pocket", "Pocket008")
pocket9.Profile = sketch10
pocket9.Type = "ThroughAll"
pocket9.Reversed = True

sketch11 = body.newObject("Sketcher::SketchObject", "Sketch010")
sketch11.AttachmentSupport = (doc.getObject("XZ_Plane"), [""])
sketch11.MapMode = "FlatFace"
sketch11.AttachmentOffset = App.Placement(V(0, 0, -0.06 * 25.4), App.Rotation())
sketch11.addGeometry(Part.Circle(V(0, 132, 0), V(0, 0, 1), 3.9), False)
sketch11.addGeometry(Part.Circle(V(11, 132, 0), V(0, 0, 1), 3.9), False)
sketch11.addGeometry(Part.Circle(V(-11, 132, 0), V(0, 0, 1), 3.9), False)
sketch11.addGeometry(Part.Circle(V(0, 120, 0), V(0, 0, 1), 3.2), False)
sketch11.addConstraint(Sketcher.Constraint("Equal", 0, 1))
sketch11.addConstraint(Sketcher.Constraint("Equal", 1, 2))
sketch11.addConstraint(Sketcher.Constraint("Symmetric", 1, 3, 2, 3, -2))
sketch11.addConstraint(Sketcher.Constraint("PointOnObject", 0, 3, -2))
sketch11.addConstraint(Sketcher.Constraint("PointOnObject", 3, 3, -2))
sketch11.addConstraint(Sketcher.Constraint("Horizontal", 0, 3, 1, 3))
sketch11.addConstraint(Sketcher.Constraint("Diameter", 3, Q("0.25 in")))
sketch11.addConstraint(Sketcher.Constraint("Diameter", 0, Q("0.307 in")))
sketch11.addConstraint(Sketcher.Constraint("DistanceY", -1, 1, 3, 3, Q("4.725 in")))
sketch11.addConstraint(Sketcher.Constraint("DistanceX", 2, 3, 1, 3, Q("0.869 in")))
sketch11.addConstraint(Sketcher.Constraint("DistanceY", -1, 1, 0, 3, Q("5.1985 in")))
sketch11.setExpression("Constraints[6]", "Params.sketch11_diameter")
sketch11.setExpression("Constraints[7]", "Params.sketch11_diameter2")
pocket10 = body.newObject("PartDesign::Pocket", "Pocket009")
pocket10.Profile = sketch11
pocket10.Type = "ThroughAll"
pocket10.Reversed = True
doc.recompute()

fillet = body.newObject("PartDesign::Fillet", "Fillet")
fillet.Base = (pocket10, edges_at(pocket10, [
    (24.041, 0.762, 57.998),
    (24.041, 0.762, 63.287),
    (24.041, 0.762, 137.996),
    (16.51, 0.762, 144.704),
    (11.43, 0.762, 142.164),
    (-11.43, 0.762, 142.164),
    (-16.51, 0.762, 144.704),
    (-24.041, 0.762, 137.996),
    (-24.041, 0.762, 63.287),
    (-24.041, 0.762, 57.998),
]))
fillet.setExpression("Radius", "Params.fillet_radius")

doc.recompute()
